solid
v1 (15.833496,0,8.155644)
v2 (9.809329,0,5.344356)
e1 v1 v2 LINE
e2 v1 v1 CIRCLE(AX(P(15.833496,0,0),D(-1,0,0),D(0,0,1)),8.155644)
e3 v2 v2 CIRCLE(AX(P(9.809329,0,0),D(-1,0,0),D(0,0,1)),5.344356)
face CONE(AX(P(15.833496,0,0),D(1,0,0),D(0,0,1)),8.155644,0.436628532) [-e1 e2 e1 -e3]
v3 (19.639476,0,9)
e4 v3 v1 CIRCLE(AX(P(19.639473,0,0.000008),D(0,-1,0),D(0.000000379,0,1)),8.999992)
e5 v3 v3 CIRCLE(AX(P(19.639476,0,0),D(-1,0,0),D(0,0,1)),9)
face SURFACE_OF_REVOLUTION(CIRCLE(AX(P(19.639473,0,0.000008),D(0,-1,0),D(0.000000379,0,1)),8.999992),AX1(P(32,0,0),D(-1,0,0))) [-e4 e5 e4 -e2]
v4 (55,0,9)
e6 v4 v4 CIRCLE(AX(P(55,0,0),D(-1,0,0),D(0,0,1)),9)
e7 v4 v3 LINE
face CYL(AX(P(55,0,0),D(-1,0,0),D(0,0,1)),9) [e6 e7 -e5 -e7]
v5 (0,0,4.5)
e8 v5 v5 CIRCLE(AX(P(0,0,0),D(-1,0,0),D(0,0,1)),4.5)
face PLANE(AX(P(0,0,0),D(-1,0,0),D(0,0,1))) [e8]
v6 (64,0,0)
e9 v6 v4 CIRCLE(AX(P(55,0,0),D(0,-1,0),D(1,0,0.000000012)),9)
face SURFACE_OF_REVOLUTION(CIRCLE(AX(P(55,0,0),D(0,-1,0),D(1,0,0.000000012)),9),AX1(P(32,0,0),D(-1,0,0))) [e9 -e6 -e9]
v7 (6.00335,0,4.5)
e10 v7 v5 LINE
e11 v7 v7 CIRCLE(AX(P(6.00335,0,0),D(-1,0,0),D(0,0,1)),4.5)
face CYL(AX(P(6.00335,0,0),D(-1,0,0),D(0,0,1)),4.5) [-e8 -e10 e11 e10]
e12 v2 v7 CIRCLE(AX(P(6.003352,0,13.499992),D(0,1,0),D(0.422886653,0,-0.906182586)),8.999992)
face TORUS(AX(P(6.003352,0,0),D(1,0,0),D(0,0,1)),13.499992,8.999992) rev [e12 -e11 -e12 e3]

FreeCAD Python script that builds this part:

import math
import FreeCAD as App
import Part
import Sketcher
from FreeCAD import Vector

doc = App.newDocument("Part")
params = doc.addObject("Spreadsheet::Sheet", "Params")
for row, (alias, value) in enumerate([
    ("sketch1_radius", "9 mm"),
    ("sketch1_width", "64 mm"),
    ("sketch1_height", "4.5 mm"),
    ("revolution_angle", "360 deg"),
], start=1):
    params.set(f"A{row}", alias)
    params.set(f"B{row}", "=" + value)
    params.setAlias(f"B{row}", alias)

body = doc.addObject("PartDesign::Body", "Body")

# Sketch on XZ plane
sketch1 = body.newObject("Sketcher::SketchObject", "Sketch")
sketch1.AttachmentSupport = (doc.getObject("XZ_Plane"), [""])
sketch1.MapMode = "FlatFace"
sketch1.addGeometry([
    Part.LineSegment(Vector(0, 4.5, 0), Vector(0, 0, 0)),  # 0
    Part.LineSegment(Vector(0, 0, 0), Vector(64, 0, 0)),  # 1
    Part.ArcOfCircle(Part.Circle(Vector(55, 0, 0), Vector(0, 0, 1), 9), math.radians(0.000001), math.radians(89.999999)),  # 2
    Part.LineSegment(Vector(55, 9, 0), Vector(19.639476, 9, 0)),  # 3
    Part.ArcOfCircle(Part.Circle(Vector(19.639473, 0.000008, 0), Vector(0, 0, 1), 8.999992), math.radians(89.999978), math.radians(115.016969)),  # 4
    Part.LineSegment(Vector(15.833496, 8.155644, 0), Vector(9.809329, 5.344356, 0)),  # 5
    Part.ArcOfCircle(Part.Circle(Vector(6.003352, 13.499992, 0), Vector(0, 0, 1), 8.999992), math.radians(-90.000015), math.radians(-64.983031)),  # 6
    Part.LineSegment(Vector(6.00335, 4.5, 0), Vector(0, 4.5, 0)),  # 7
], False)
sketch1.addConstraint([
    Sketcher.Constraint("Coincident", 0, 2, 1, 1),
    Sketcher.Constraint("Coincident", 1, 2, 2, 1),
    Sketcher.Constraint("Tangent", 2, 2, 3, 1),
    Sketcher.Constraint("Tangent", 3, 2, 4, 1),
    Sketcher.Constraint("Tangent", 4, 2, 5, 1),
    Sketcher.Constraint("Tangent", 5, 2, 6, 2),
    Sketcher.Constraint("Tangent", 6, 1, 7, 1),
    Sketcher.Constraint("Coincident", 7, 2, 0, 1),
    Sketcher.Constraint("Vertical", 0),
    Sketcher.Constraint("Horizontal", 1),
    Sketcher.Constraint("Horizontal", 3),
    Sketcher.Constraint("Horizontal", 7),
    Sketcher.Constraint("Coincident", 0, 2, -1, 1),
    Sketcher.Constraint("Equal", 4, 6),
    Sketcher.Constraint("PointOnObject", 2, 3, -1),
    Sketcher.Constraint("Radius", 2, 9.0),
    Sketcher.Constraint("DistanceX", 1, 1, 1, 2, 64.0),
    Sketcher.Constraint("DistanceY", 0, 2, 0, 1, 4.5),
    Sketcher.Constraint("Radius", 4, 8.999992),
    Sketcher.Constraint("DistanceX", 7, 2, 7, 1, 6.00335),
    Sketcher.Constraint("Distance", 5, 6.647851),
])
sketch1.setExpression("Constraints[15]", "Params.sketch1_radius")
sketch1.setExpression("Constraints[16]", "Params.sketch1_width")
sketch1.setExpression("Constraints[17]", "Params.sketch1_height")
revolution = body.newObject("PartDesign::Revolution", "Revolution")
revolution.Profile = sketch1
revolution.ReferenceAxis = (sketch1, ["H_Axis"])
revolution.setExpression("Angle", "Params.revolution_angle")

doc.recompute()
